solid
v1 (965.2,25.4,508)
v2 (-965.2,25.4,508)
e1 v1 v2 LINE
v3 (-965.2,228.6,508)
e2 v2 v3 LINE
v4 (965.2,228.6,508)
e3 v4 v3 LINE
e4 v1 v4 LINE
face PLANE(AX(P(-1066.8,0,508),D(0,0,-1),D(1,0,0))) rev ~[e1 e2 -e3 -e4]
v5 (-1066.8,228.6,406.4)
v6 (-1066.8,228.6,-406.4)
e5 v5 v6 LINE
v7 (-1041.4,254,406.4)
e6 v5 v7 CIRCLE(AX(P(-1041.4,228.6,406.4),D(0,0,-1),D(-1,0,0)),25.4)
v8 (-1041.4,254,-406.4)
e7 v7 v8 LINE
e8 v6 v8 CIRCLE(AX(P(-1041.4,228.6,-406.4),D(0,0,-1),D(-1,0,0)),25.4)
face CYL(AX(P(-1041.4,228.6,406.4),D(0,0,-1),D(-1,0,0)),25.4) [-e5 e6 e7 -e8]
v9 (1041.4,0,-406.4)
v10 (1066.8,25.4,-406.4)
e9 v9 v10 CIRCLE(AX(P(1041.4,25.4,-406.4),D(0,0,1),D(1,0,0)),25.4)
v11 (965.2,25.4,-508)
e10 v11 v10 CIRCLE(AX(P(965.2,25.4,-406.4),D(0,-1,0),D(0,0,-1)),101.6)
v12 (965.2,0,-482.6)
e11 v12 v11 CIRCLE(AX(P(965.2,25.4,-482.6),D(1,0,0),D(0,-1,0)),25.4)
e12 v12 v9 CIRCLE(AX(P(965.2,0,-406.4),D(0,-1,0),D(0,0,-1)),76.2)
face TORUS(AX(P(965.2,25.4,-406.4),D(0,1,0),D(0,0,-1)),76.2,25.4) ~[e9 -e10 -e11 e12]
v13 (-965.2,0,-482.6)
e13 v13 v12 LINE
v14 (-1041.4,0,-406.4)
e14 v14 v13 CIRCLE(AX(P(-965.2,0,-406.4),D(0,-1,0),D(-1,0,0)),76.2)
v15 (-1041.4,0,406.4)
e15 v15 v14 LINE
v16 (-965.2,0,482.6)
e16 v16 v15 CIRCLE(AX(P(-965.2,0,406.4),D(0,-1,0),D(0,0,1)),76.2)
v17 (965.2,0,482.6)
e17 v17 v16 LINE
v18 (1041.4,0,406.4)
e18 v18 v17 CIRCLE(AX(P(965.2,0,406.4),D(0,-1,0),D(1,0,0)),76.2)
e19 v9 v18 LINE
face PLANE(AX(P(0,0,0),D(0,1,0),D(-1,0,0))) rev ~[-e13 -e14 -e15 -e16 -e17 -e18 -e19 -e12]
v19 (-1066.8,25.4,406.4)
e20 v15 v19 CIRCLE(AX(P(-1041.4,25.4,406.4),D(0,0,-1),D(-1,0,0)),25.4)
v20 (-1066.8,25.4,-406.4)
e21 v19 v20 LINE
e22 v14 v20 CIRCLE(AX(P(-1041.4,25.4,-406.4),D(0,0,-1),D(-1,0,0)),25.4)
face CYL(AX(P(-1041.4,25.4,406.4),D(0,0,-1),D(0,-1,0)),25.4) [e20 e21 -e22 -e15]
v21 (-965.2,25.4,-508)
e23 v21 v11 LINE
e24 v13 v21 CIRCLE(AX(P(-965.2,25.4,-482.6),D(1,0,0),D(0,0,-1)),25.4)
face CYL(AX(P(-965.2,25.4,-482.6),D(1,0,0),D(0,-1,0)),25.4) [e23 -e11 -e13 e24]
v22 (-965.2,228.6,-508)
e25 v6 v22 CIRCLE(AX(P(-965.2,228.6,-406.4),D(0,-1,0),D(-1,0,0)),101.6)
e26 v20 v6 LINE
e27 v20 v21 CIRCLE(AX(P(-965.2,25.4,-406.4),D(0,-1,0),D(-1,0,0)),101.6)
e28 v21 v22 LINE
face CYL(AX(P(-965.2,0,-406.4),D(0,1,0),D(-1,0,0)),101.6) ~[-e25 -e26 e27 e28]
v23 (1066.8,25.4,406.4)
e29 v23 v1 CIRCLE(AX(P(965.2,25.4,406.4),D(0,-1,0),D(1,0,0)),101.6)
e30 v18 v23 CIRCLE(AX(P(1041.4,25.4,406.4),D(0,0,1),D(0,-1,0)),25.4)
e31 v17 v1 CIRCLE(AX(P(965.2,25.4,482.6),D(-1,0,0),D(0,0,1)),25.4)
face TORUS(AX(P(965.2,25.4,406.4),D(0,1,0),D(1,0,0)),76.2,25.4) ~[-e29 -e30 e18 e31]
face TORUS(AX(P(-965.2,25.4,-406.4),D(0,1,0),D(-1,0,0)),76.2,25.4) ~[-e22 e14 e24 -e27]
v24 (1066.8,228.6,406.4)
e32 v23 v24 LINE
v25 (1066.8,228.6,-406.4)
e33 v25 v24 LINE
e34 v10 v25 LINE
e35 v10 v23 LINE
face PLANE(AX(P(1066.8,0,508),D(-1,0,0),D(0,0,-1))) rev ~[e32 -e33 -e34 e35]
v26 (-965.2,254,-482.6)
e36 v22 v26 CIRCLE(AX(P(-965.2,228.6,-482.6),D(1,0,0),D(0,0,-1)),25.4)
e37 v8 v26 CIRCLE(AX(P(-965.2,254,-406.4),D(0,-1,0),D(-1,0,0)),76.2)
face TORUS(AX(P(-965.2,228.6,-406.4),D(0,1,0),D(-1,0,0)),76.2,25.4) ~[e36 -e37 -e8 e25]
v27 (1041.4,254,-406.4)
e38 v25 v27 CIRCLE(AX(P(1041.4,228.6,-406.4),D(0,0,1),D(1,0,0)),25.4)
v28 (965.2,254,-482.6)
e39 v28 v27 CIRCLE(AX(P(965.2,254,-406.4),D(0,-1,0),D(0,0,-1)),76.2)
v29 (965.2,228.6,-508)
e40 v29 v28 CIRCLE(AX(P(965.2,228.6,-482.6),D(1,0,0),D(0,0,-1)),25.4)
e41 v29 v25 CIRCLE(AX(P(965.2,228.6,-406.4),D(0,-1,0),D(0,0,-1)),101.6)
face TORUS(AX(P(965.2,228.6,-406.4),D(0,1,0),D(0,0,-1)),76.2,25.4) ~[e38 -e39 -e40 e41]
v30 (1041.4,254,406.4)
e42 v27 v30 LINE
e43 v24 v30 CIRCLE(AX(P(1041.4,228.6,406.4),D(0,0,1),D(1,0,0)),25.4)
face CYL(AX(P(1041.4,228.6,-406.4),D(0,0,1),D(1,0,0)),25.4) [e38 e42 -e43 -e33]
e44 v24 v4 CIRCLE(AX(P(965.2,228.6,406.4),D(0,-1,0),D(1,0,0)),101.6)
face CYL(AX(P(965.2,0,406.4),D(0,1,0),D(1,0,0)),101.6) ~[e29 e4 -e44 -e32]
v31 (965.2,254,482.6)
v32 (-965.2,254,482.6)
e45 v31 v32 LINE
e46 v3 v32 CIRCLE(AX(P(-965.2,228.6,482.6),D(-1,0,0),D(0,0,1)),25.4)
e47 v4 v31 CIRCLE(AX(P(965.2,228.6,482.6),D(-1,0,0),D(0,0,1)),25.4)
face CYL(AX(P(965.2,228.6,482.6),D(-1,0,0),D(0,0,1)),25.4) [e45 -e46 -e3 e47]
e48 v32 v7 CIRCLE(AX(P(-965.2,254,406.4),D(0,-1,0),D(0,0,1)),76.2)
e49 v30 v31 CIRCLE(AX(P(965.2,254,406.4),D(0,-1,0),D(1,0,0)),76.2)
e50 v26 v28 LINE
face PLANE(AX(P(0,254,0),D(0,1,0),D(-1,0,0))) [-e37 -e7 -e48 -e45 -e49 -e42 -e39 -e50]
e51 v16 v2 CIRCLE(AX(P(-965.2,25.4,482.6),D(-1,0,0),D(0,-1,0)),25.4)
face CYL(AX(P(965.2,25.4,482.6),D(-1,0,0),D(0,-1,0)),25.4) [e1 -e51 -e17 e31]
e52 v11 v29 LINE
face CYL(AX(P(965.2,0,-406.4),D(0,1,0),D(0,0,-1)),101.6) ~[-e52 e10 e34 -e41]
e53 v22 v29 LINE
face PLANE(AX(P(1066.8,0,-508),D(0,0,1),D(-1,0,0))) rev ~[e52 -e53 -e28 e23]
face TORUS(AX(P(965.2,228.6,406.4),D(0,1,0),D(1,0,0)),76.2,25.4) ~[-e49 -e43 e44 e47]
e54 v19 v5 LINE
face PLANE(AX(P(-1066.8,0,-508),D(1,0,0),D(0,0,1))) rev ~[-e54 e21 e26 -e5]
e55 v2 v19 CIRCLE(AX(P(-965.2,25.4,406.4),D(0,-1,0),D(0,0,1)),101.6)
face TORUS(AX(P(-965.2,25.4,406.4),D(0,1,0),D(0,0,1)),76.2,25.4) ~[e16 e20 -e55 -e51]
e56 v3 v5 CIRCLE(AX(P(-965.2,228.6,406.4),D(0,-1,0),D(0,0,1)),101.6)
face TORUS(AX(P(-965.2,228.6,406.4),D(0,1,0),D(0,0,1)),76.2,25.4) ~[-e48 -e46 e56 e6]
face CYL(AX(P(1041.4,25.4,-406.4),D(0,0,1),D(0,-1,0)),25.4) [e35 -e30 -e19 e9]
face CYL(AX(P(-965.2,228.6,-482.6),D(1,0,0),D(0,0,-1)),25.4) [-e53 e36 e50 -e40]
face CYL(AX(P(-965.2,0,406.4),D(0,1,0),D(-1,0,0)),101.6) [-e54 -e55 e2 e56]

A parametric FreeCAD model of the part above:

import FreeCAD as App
import Part
import Sketcher
from FreeCAD import Vector
Q = App.Units.Quantity


def edges_at(feature, points):
    """Names of the edges that pass closest to the given points."""
    edges = feature.Shape.Edges
    near = lambda p: min(range(len(edges)), key=lambda i: edges[i].distToShape(Part.Vertex(*p))[0])
    return sorted({f"Edge{near(p) + 1}" for p in points})


def add_polygon(sketch, points):
    """Adds a closed chain of lines whose ends are joined by coincident constraints."""
    first, n = sketch.GeometryCount, len(points)
    for a, b in zip(points, points[1:] + points[:1]):
        sketch.addGeometry(Part.LineSegment(App.Vector(*a, 0), App.Vector(*b, 0)), False)
    for i in range(n):
        sketch.addConstraint(Sketcher.Constraint("Coincident", first + i, 2, first + (i + 1) % n, 1))

doc = App.newDocument("Part")
params = doc.addObject("Spreadsheet::Sheet", "Params")
for row, (alias, value) in enumerate([
    ("sketch1_width", "84 in"),
    ("sketch1_height", "40 in"),
    ("pad1_length", "10 in"),
    ("fillet_radius", "4 in"),
    ("fillet2_radius", "1 in"),
], start=1):
    params.set(f"A{row}", alias)
    params.set(f"B{row}", "=" + value)
    params.setAlias(f"B{row}", alias)

body = doc.addObject("PartDesign::Body", "Body")

# Sketch on XZ plane
sketch1 = body.newObject("Sketcher::SketchObject", "Sketch")
sketch1.AttachmentSupport = (doc.getObject("XZ_Plane"), [""])
sketch1.MapMode = "FlatFace"
add_polygon(sketch1, [(-1066.8, -508), (-1066.8, 508), (1066.8, 508), (1066.8, -508)])  # lines 0-3
sketch1.addConstraint([
    Sketcher.Constraint("Vertical", 0),
    Sketcher.Constraint("Horizontal", 1),
    Sketcher.Constraint("Vertical", 2),
    Sketcher.Constraint("Horizontal", 3),
    Sketcher.Constraint("Symmetric", 0, 2, 2, 2, -1, 1),
    Sketcher.Constraint("DistanceX", 1, 1, 1, 2, Q("84 in")),
    Sketcher.Constraint("DistanceY", 0, 1, 0, 2, Q("40 in")),
])
sketch1.setExpression("Constraints[9]", "Params.sketch1_width")
sketch1.setExpression("Constraints[10]", "Params.sketch1_height")
pad1 = body.newObject("PartDesign::Pad", "Pad")
pad1.Profile = sketch1
pad1.setExpression("Length", "Params.pad1_length")
pad1.Reversed = True
doc.recompute()

fillet = body.newObject("PartDesign::Fillet", "Fillet")
fillet.Base = (pad1, edges_at(pad1, [
    (1066.8, 127, 508),
    (1066.8, 127, -508),
    (-1066.8, 127, 508),
    (-1066.8, 127, -508),
]))
fillet.setExpression("Radius", "Params.fillet_radius")
doc.recompute()

fillet2 = body.newObject("PartDesign::Fillet", "Fillet001")
fillet2.Base = (fillet, edges_at(fillet, [
    (-1037.042, 254, -478.242),
    (-1066.8, 254, 0),
    (-1037.042, 254, 478.242),
    (0, 254, 508),
    (1037.042, 254, 478.242),
    (1066.8, 254, 0),
    (1037.042, 254, -478.242),
    (0, 254, -508),
    (-1037.042, 0, -478.242),
    (-1066.8, 0, 0),
    (-1037.042, 0, 478.242),
    (0, 0, 508),
    (1037.042, 0, 478.242),
    (1066.8, 0, 0),
    (1037.042, 0, -478.242),
    (0, 0, -508),
]))
fillet2.setExpression("Radius", "Params.fillet2_radius")

doc.recompute()
